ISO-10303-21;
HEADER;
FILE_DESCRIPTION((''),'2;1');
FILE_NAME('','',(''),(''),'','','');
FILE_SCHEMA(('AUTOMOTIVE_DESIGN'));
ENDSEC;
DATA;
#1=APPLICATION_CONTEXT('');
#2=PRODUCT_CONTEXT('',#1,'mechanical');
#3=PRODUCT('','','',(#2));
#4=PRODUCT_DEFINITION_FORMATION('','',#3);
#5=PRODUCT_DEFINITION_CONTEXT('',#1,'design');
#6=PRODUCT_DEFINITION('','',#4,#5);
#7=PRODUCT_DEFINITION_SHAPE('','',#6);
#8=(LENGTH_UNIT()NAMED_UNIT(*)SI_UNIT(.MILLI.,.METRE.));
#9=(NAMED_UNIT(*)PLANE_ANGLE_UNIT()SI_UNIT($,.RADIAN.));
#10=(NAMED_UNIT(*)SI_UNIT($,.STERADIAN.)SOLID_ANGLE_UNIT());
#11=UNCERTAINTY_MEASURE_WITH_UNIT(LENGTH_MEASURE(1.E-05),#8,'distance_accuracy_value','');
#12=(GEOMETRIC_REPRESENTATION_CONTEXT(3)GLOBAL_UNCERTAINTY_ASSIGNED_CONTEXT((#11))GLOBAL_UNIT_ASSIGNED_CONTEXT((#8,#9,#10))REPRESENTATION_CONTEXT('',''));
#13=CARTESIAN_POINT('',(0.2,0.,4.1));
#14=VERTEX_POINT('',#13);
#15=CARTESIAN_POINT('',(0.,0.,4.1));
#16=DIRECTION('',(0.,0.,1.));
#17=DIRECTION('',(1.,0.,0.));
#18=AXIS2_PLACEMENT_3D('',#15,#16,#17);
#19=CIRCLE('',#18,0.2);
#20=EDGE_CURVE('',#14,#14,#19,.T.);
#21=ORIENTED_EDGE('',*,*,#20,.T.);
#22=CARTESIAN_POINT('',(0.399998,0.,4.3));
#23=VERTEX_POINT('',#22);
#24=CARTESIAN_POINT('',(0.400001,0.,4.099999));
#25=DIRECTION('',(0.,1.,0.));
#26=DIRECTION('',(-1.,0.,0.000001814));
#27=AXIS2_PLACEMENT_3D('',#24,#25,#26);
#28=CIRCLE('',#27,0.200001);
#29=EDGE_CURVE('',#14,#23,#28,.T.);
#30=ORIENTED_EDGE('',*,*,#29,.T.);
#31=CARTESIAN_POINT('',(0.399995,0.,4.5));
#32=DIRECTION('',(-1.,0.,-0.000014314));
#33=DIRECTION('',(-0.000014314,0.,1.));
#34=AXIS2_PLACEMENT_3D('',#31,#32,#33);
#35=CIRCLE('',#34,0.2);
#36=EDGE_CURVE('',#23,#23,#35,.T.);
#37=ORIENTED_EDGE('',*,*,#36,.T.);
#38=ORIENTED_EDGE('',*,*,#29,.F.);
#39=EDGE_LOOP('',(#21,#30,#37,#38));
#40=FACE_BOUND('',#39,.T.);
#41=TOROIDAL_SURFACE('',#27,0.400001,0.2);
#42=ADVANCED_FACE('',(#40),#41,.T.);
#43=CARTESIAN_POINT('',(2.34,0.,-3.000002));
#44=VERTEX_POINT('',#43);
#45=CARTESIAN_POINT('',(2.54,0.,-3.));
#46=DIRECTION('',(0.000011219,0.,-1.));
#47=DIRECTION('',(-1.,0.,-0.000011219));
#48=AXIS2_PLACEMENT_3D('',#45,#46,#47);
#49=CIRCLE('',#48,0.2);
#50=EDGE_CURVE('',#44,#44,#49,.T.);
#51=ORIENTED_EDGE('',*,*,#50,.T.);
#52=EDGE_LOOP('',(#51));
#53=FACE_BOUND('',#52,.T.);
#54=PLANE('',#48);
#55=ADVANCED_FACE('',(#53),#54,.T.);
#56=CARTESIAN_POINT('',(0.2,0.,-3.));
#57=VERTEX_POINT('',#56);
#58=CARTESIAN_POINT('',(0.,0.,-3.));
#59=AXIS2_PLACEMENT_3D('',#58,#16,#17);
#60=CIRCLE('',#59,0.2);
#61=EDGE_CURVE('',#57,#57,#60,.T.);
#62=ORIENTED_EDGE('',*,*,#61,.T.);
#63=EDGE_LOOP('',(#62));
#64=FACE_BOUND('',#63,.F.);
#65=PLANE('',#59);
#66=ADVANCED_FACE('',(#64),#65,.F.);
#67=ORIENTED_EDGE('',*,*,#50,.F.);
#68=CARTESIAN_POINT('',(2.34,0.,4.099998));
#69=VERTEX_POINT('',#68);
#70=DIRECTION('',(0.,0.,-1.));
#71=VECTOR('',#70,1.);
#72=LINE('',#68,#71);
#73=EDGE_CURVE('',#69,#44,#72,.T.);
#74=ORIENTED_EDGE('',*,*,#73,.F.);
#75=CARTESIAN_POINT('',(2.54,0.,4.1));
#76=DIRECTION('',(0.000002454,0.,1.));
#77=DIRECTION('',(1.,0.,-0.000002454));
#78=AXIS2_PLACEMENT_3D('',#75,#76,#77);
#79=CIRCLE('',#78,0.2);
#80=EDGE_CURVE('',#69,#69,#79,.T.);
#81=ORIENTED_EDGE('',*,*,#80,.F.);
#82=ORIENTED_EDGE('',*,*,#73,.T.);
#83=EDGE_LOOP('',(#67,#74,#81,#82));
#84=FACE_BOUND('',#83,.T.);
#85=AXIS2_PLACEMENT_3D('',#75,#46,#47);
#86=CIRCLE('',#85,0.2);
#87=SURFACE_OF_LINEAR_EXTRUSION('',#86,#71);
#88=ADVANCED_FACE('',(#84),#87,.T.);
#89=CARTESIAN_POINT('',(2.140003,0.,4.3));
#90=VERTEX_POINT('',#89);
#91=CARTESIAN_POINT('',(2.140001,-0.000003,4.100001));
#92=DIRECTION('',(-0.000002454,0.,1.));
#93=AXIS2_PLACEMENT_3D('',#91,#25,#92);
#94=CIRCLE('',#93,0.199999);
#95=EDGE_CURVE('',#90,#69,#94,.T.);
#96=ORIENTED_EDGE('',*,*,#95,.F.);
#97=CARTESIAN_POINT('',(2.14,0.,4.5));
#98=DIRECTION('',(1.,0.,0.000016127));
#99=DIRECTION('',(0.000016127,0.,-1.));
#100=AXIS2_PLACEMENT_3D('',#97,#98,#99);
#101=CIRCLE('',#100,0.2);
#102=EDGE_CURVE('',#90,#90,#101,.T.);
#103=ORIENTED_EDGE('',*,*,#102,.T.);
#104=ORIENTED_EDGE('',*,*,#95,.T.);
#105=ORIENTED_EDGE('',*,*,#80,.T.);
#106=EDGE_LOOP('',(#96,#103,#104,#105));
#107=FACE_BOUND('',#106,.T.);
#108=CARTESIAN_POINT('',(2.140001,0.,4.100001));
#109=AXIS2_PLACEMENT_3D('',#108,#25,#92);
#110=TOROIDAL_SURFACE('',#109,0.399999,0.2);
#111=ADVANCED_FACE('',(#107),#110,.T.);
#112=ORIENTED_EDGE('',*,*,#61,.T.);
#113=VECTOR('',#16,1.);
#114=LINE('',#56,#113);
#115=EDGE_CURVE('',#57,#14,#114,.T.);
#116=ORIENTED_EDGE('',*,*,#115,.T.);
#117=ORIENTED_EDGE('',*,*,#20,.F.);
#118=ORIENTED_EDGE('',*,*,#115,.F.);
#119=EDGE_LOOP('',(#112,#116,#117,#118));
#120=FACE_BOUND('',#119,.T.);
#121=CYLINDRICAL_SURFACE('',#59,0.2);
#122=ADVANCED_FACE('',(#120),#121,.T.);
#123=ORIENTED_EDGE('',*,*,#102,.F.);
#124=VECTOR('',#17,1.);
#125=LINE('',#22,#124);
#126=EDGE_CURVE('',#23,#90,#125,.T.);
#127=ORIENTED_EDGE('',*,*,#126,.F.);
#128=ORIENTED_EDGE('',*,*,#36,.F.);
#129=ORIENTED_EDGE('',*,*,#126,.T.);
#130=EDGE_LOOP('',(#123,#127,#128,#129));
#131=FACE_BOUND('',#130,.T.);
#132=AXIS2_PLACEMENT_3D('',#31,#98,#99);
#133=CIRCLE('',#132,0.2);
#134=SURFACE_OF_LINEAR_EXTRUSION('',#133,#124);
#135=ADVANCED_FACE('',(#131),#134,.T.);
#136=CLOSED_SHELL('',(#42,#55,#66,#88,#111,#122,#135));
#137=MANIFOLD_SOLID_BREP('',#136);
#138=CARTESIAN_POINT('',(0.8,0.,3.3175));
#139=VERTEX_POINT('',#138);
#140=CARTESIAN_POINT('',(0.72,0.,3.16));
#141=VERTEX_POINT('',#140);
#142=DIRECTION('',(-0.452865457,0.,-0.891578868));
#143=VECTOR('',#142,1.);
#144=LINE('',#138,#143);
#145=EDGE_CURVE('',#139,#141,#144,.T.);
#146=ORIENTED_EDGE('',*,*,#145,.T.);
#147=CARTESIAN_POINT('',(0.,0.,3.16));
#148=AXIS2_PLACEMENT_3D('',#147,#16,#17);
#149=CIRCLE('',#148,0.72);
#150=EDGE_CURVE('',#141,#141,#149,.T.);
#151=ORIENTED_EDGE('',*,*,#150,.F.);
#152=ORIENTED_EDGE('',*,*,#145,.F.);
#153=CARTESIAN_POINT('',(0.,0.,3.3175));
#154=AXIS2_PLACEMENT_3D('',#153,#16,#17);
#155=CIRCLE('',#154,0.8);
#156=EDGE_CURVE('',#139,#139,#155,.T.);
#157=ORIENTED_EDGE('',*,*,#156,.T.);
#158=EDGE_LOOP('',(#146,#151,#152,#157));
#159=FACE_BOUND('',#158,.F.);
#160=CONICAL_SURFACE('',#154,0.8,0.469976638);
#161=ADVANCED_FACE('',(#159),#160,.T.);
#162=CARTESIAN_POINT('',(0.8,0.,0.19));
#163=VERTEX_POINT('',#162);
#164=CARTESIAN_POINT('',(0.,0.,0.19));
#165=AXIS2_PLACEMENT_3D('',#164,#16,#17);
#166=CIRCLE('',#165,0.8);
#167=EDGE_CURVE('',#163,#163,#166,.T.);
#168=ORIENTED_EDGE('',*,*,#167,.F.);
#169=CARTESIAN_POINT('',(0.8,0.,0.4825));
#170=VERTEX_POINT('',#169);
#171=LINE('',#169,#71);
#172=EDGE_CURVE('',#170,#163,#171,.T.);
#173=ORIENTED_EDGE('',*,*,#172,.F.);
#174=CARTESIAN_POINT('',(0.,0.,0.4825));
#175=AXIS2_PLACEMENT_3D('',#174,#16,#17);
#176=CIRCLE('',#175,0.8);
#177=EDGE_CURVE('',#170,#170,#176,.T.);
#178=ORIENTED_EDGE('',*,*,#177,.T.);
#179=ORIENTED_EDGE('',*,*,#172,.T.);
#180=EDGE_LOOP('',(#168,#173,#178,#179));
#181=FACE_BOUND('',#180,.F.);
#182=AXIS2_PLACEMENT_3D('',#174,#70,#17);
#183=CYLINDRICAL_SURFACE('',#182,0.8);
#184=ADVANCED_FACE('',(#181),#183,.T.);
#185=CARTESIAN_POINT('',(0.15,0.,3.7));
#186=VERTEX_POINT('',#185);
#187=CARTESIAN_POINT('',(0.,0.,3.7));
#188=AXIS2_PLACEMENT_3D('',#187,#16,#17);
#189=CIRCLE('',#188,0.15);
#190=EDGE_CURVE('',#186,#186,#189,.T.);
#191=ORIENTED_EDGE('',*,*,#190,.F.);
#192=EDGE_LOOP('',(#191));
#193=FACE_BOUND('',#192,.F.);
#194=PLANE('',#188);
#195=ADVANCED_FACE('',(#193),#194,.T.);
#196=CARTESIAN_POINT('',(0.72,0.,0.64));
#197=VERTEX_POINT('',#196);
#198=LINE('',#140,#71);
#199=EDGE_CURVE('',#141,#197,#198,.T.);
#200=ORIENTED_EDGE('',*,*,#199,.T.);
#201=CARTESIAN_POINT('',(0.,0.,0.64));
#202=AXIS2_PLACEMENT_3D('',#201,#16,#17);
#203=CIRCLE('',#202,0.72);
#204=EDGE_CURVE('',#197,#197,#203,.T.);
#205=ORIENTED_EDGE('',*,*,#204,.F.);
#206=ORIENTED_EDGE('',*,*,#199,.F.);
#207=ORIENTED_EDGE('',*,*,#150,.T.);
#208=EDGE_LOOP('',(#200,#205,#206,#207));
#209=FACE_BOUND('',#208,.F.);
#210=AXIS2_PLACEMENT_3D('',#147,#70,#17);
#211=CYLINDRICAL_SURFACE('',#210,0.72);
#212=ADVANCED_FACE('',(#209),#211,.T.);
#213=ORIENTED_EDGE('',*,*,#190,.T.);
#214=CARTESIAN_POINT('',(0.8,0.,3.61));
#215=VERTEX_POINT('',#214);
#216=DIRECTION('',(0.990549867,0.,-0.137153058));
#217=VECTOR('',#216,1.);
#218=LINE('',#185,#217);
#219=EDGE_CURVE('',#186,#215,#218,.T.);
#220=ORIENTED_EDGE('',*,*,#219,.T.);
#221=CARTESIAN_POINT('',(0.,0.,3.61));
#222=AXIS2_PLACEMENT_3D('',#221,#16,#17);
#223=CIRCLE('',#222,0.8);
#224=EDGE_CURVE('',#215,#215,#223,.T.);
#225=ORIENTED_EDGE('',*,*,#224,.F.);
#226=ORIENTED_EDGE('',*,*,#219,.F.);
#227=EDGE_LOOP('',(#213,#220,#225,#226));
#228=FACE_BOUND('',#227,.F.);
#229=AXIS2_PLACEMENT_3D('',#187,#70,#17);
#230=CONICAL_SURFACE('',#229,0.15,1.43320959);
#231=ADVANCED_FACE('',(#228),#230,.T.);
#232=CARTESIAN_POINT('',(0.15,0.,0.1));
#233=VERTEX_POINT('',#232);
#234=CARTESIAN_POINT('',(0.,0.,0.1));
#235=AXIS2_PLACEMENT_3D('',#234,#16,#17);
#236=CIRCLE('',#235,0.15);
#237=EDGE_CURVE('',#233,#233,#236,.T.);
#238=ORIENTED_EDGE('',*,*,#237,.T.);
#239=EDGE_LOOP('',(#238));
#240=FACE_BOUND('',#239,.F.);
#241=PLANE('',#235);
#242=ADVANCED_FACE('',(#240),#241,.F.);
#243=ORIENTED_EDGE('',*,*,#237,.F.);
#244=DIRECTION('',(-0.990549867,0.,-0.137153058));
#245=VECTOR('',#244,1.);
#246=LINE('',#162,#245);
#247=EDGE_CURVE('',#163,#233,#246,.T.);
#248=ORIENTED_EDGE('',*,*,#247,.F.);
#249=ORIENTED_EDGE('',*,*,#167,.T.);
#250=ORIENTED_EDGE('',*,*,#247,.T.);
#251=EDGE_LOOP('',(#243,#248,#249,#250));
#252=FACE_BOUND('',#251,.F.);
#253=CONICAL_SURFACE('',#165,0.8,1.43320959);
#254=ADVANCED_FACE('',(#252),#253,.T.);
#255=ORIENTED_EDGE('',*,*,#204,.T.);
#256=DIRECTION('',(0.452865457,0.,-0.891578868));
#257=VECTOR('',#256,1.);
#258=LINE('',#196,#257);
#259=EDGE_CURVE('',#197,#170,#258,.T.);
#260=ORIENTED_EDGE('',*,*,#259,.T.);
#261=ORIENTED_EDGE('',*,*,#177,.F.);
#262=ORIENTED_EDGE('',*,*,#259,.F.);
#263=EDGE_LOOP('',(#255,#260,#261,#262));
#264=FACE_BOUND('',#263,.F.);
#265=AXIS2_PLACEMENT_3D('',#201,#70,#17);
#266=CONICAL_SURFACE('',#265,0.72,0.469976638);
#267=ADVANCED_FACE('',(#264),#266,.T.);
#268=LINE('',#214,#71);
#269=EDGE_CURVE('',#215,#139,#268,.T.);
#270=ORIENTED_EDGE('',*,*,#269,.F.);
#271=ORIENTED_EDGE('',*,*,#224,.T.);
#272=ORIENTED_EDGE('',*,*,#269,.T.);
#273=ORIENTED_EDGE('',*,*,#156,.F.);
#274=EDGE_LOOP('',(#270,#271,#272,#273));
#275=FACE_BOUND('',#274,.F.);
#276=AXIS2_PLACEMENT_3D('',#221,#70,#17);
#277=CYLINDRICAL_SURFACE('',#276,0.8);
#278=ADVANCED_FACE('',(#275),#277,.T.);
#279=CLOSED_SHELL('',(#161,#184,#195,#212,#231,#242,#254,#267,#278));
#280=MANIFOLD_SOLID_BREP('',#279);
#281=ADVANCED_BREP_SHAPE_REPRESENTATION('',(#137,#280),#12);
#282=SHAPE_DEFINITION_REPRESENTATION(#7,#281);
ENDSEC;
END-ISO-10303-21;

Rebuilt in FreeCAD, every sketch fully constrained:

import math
import FreeCAD as App
import Part
import Sketcher
from FreeCAD import Vector

doc = App.newDocument("Part")
body = doc.addObject("PartDesign::Body", "Body")

# Sketch on XY plane
sketch1 = doc.addObject("Sketcher::SketchObject", "Sketch")
body.addObject(sketch1)
sketch1.AttachmentSupport = (doc.XY_Plane, [""])
sketch1.MapMode = "FlatFace"
sketch1.AttachmentOffset = App.Placement(Vector(0, 0, -2), App.Rotation())
sketch1.addGeometry(Part.Circle(Vector(0, 0, 0), Vector(0, 0, 1), 0.2), False)
sketch1.addConstraint([
    Sketcher.Constraint("Coincident", 0, 3, -1, 1),
    Sketcher.Constraint("Diameter", 0, 0.4),
])

# Sketch on XZ plane
sketch2 = doc.addObject("Sketcher::SketchObject", "Sketch001")
body.addObject(sketch2)
sketch2.AttachmentSupport = (doc.XZ_Plane, [""])
sketch2.MapMode = "FlatFace"
sketch2.addGeometry([
    Part.LineSegment(Vector(0, -3, 0), Vector(0, 4.1, 0)),  # 0
    Part.ArcOfCircle(Part.Circle(Vector(0.400001, 4.099999, 0), Vector(0, 0, 1), 0.400001), math.radians(90.00082), math.radians(179.999896)),  # 1
    Part.LineSegment(Vector(0.399995, 4.5, 0), Vector(2.14, 4.5, 0)),  # 2
    Part.ArcOfCircle(Part.Circle(Vector(2.140001, 4.100001, 0), Vector(0, 0, 1), 0.399999), math.radians(-0.000141), math.radians(90.000141)),  # 3
    Part.LineSegment(Vector(2.54, 4.1, 0), Vector(2.54, -3, 0)),  # 4
], False)
sketch2.addConstraint([
    Sketcher.Constraint("Tangent", 0, 2, 1, 2),
    Sketcher.Constraint("Coincident", 1, 1, 2, 1),
    Sketcher.Constraint("Coincident", 2, 2, 3, 2),
    Sketcher.Constraint("Coincident", 3, 1, 4, 1),
    Sketcher.Constraint("Vertical", 0),
    Sketcher.Constraint("Horizontal", 2),
    Sketcher.Constraint("Vertical", 4),
    Sketcher.Constraint("Equal", 1, 3),
    Sketcher.Constraint("PointOnObject", 0, 1, -2),
    Sketcher.Constraint("Horizontal", 0, 2, 3, 1),
    Sketcher.Constraint("Horizontal", 0, 1, 4, 2),
    Sketcher.Constraint("Vertical", 3, 3, 2, 2),
    Sketcher.Constraint("Radius", 1, 0.400001),
    Sketcher.Constraint("DistanceY", 0, 1, 0, 2, 7.1),
    Sketcher.Constraint("DistanceY", 0, 1, -1, 1, 3.0),
    Sketcher.Constraint("DistanceX", -1, 1, 3, 3, 2.140001),
    Sketcher.Constraint("DistanceX", 2, 1, 2, 2, 1.740005),
])
doc.recompute()

additivepipe = doc.addObject("PartDesign::AdditivePipe", "AdditivePipe")
body.addObject(additivepipe)
additivepipe.Profile = sketch1
additivepipe.Spine = (sketch2, ["Edge1", "Edge2", "Edge3", "Edge4", "Edge5"])
body2 = doc.addObject("PartDesign::Body", "Body001")

# Sketch on XZ plane
sketch3 = doc.addObject("Sketcher::SketchObject", "Sketch002")
body2.addObject(sketch3)
sketch3.AttachmentSupport = (doc.getObject("XZ_Plane001"), [""])
sketch3.MapMode = "FlatFace"
sketch3.addGeometry([
    Part.LineSegment(Vector(0, 3.7, 0), Vector(0, 0.1, 0)),  # 0
    Part.LineSegment(Vector(0, 0.1, 0), Vector(0.15, 0.1, 0)),  # 1
    Part.LineSegment(Vector(0.15, 0.1, 0), Vector(0.8, 0.19, 0)),  # 2
    Part.LineSegment(Vector(0.8, 0.19, 0), Vector(0.8, 0.4825, 0)),  # 3
    Part.LineSegment(Vector(0.8, 0.4825, 0), Vector(0.72, 0.64, 0)),  # 4
    Part.LineSegment(Vector(0.72, 0.64, 0), Vector(0.72, 3.16, 0)),  # 5
    Part.LineSegment(Vector(0.72, 3.16, 0), Vector(0.8, 3.3175, 0)),  # 6
    Part.LineSegment(Vector(0.8, 3.3175, 0), Vector(0.8, 3.61, 0)),  # 7
    Part.LineSegment(Vector(0.8, 3.61, 0), Vector(0.15, 3.7, 0)),  # 8
    Part.LineSegment(Vector(0.15, 3.7, 0), Vector(0, 3.7, 0)),  # 9
], False)
sketch3.addConstraint([
    Sketcher.Constraint("Coincident", 0, 2, 1, 1),
    Sketcher.Constraint("Coincident", 1, 2, 2, 1),
    Sketcher.Constraint("Coincident", 2, 2, 3, 1),
    Sketcher.Constraint("Coincident", 3, 2, 4, 1),
    Sketcher.Constraint("Coincident", 4, 2, 5, 1),
    Sketcher.Constraint("Coincident", 5, 2, 6, 1),
    Sketcher.Constraint("Coincident", 6, 2, 7, 1),
    Sketcher.Constraint("Coincident", 7, 2, 8, 1),
    Sketcher.Constraint("Coincident", 8, 2, 9, 1),
    Sketcher.Constraint("Coincident", 9, 2, 0, 1),
    Sketcher.Constraint("Vertical", 0),
    Sketcher.Constraint("Horizontal", 1),
    Sketcher.Constraint("Vertical", 3),
    Sketcher.Constraint("Vertical", 5),
    Sketcher.Constraint("Vertical", 7),
    Sketcher.Constraint("Horizontal", 9),
    Sketcher.Constraint("PointOnObject", 0, 2, -2),
    Sketcher.Constraint("Vertical", 3, 2, 6, 2),
    Sketcher.Constraint("Vertical", 1, 2, 8, 2),
    Sketcher.Constraint("Equal", 3, 7),
    Sketcher.Constraint("Equal", 4, 6),
    Sketcher.Constraint("Equal", 2, 8),
    Sketcher.Constraint("DistanceY", 0, 2, 0, 1, 3.6),
    Sketcher.Constraint("DistanceX", 1, 1, 1, 2, 0.15),
    Sketcher.Constraint("DistanceY", 5, 1, 5, 2, 2.52),
    Sketcher.Constraint("DistanceY", -1, 1, 0, 2, 0.1),
    Sketcher.Constraint("DistanceX", -1, 1, 2, 2, 0.8),
    Sketcher.Constraint("DistanceY", -1, 1, 2, 2, 0.19),
    Sketcher.Constraint("DistanceX", -1, 1, 4, 2, 0.72),
    Sketcher.Constraint("DistanceY", 3, 1, 3, 2, 0.2925),
])
revolution = doc.addObject("PartDesign::Revolution", "Revolution")
body2.addObject(revolution)
revolution.Profile = sketch3
revolution.ReferenceAxis = (sketch3, ["V_Axis"])
revolution.Angle = 360

doc.recompute()
